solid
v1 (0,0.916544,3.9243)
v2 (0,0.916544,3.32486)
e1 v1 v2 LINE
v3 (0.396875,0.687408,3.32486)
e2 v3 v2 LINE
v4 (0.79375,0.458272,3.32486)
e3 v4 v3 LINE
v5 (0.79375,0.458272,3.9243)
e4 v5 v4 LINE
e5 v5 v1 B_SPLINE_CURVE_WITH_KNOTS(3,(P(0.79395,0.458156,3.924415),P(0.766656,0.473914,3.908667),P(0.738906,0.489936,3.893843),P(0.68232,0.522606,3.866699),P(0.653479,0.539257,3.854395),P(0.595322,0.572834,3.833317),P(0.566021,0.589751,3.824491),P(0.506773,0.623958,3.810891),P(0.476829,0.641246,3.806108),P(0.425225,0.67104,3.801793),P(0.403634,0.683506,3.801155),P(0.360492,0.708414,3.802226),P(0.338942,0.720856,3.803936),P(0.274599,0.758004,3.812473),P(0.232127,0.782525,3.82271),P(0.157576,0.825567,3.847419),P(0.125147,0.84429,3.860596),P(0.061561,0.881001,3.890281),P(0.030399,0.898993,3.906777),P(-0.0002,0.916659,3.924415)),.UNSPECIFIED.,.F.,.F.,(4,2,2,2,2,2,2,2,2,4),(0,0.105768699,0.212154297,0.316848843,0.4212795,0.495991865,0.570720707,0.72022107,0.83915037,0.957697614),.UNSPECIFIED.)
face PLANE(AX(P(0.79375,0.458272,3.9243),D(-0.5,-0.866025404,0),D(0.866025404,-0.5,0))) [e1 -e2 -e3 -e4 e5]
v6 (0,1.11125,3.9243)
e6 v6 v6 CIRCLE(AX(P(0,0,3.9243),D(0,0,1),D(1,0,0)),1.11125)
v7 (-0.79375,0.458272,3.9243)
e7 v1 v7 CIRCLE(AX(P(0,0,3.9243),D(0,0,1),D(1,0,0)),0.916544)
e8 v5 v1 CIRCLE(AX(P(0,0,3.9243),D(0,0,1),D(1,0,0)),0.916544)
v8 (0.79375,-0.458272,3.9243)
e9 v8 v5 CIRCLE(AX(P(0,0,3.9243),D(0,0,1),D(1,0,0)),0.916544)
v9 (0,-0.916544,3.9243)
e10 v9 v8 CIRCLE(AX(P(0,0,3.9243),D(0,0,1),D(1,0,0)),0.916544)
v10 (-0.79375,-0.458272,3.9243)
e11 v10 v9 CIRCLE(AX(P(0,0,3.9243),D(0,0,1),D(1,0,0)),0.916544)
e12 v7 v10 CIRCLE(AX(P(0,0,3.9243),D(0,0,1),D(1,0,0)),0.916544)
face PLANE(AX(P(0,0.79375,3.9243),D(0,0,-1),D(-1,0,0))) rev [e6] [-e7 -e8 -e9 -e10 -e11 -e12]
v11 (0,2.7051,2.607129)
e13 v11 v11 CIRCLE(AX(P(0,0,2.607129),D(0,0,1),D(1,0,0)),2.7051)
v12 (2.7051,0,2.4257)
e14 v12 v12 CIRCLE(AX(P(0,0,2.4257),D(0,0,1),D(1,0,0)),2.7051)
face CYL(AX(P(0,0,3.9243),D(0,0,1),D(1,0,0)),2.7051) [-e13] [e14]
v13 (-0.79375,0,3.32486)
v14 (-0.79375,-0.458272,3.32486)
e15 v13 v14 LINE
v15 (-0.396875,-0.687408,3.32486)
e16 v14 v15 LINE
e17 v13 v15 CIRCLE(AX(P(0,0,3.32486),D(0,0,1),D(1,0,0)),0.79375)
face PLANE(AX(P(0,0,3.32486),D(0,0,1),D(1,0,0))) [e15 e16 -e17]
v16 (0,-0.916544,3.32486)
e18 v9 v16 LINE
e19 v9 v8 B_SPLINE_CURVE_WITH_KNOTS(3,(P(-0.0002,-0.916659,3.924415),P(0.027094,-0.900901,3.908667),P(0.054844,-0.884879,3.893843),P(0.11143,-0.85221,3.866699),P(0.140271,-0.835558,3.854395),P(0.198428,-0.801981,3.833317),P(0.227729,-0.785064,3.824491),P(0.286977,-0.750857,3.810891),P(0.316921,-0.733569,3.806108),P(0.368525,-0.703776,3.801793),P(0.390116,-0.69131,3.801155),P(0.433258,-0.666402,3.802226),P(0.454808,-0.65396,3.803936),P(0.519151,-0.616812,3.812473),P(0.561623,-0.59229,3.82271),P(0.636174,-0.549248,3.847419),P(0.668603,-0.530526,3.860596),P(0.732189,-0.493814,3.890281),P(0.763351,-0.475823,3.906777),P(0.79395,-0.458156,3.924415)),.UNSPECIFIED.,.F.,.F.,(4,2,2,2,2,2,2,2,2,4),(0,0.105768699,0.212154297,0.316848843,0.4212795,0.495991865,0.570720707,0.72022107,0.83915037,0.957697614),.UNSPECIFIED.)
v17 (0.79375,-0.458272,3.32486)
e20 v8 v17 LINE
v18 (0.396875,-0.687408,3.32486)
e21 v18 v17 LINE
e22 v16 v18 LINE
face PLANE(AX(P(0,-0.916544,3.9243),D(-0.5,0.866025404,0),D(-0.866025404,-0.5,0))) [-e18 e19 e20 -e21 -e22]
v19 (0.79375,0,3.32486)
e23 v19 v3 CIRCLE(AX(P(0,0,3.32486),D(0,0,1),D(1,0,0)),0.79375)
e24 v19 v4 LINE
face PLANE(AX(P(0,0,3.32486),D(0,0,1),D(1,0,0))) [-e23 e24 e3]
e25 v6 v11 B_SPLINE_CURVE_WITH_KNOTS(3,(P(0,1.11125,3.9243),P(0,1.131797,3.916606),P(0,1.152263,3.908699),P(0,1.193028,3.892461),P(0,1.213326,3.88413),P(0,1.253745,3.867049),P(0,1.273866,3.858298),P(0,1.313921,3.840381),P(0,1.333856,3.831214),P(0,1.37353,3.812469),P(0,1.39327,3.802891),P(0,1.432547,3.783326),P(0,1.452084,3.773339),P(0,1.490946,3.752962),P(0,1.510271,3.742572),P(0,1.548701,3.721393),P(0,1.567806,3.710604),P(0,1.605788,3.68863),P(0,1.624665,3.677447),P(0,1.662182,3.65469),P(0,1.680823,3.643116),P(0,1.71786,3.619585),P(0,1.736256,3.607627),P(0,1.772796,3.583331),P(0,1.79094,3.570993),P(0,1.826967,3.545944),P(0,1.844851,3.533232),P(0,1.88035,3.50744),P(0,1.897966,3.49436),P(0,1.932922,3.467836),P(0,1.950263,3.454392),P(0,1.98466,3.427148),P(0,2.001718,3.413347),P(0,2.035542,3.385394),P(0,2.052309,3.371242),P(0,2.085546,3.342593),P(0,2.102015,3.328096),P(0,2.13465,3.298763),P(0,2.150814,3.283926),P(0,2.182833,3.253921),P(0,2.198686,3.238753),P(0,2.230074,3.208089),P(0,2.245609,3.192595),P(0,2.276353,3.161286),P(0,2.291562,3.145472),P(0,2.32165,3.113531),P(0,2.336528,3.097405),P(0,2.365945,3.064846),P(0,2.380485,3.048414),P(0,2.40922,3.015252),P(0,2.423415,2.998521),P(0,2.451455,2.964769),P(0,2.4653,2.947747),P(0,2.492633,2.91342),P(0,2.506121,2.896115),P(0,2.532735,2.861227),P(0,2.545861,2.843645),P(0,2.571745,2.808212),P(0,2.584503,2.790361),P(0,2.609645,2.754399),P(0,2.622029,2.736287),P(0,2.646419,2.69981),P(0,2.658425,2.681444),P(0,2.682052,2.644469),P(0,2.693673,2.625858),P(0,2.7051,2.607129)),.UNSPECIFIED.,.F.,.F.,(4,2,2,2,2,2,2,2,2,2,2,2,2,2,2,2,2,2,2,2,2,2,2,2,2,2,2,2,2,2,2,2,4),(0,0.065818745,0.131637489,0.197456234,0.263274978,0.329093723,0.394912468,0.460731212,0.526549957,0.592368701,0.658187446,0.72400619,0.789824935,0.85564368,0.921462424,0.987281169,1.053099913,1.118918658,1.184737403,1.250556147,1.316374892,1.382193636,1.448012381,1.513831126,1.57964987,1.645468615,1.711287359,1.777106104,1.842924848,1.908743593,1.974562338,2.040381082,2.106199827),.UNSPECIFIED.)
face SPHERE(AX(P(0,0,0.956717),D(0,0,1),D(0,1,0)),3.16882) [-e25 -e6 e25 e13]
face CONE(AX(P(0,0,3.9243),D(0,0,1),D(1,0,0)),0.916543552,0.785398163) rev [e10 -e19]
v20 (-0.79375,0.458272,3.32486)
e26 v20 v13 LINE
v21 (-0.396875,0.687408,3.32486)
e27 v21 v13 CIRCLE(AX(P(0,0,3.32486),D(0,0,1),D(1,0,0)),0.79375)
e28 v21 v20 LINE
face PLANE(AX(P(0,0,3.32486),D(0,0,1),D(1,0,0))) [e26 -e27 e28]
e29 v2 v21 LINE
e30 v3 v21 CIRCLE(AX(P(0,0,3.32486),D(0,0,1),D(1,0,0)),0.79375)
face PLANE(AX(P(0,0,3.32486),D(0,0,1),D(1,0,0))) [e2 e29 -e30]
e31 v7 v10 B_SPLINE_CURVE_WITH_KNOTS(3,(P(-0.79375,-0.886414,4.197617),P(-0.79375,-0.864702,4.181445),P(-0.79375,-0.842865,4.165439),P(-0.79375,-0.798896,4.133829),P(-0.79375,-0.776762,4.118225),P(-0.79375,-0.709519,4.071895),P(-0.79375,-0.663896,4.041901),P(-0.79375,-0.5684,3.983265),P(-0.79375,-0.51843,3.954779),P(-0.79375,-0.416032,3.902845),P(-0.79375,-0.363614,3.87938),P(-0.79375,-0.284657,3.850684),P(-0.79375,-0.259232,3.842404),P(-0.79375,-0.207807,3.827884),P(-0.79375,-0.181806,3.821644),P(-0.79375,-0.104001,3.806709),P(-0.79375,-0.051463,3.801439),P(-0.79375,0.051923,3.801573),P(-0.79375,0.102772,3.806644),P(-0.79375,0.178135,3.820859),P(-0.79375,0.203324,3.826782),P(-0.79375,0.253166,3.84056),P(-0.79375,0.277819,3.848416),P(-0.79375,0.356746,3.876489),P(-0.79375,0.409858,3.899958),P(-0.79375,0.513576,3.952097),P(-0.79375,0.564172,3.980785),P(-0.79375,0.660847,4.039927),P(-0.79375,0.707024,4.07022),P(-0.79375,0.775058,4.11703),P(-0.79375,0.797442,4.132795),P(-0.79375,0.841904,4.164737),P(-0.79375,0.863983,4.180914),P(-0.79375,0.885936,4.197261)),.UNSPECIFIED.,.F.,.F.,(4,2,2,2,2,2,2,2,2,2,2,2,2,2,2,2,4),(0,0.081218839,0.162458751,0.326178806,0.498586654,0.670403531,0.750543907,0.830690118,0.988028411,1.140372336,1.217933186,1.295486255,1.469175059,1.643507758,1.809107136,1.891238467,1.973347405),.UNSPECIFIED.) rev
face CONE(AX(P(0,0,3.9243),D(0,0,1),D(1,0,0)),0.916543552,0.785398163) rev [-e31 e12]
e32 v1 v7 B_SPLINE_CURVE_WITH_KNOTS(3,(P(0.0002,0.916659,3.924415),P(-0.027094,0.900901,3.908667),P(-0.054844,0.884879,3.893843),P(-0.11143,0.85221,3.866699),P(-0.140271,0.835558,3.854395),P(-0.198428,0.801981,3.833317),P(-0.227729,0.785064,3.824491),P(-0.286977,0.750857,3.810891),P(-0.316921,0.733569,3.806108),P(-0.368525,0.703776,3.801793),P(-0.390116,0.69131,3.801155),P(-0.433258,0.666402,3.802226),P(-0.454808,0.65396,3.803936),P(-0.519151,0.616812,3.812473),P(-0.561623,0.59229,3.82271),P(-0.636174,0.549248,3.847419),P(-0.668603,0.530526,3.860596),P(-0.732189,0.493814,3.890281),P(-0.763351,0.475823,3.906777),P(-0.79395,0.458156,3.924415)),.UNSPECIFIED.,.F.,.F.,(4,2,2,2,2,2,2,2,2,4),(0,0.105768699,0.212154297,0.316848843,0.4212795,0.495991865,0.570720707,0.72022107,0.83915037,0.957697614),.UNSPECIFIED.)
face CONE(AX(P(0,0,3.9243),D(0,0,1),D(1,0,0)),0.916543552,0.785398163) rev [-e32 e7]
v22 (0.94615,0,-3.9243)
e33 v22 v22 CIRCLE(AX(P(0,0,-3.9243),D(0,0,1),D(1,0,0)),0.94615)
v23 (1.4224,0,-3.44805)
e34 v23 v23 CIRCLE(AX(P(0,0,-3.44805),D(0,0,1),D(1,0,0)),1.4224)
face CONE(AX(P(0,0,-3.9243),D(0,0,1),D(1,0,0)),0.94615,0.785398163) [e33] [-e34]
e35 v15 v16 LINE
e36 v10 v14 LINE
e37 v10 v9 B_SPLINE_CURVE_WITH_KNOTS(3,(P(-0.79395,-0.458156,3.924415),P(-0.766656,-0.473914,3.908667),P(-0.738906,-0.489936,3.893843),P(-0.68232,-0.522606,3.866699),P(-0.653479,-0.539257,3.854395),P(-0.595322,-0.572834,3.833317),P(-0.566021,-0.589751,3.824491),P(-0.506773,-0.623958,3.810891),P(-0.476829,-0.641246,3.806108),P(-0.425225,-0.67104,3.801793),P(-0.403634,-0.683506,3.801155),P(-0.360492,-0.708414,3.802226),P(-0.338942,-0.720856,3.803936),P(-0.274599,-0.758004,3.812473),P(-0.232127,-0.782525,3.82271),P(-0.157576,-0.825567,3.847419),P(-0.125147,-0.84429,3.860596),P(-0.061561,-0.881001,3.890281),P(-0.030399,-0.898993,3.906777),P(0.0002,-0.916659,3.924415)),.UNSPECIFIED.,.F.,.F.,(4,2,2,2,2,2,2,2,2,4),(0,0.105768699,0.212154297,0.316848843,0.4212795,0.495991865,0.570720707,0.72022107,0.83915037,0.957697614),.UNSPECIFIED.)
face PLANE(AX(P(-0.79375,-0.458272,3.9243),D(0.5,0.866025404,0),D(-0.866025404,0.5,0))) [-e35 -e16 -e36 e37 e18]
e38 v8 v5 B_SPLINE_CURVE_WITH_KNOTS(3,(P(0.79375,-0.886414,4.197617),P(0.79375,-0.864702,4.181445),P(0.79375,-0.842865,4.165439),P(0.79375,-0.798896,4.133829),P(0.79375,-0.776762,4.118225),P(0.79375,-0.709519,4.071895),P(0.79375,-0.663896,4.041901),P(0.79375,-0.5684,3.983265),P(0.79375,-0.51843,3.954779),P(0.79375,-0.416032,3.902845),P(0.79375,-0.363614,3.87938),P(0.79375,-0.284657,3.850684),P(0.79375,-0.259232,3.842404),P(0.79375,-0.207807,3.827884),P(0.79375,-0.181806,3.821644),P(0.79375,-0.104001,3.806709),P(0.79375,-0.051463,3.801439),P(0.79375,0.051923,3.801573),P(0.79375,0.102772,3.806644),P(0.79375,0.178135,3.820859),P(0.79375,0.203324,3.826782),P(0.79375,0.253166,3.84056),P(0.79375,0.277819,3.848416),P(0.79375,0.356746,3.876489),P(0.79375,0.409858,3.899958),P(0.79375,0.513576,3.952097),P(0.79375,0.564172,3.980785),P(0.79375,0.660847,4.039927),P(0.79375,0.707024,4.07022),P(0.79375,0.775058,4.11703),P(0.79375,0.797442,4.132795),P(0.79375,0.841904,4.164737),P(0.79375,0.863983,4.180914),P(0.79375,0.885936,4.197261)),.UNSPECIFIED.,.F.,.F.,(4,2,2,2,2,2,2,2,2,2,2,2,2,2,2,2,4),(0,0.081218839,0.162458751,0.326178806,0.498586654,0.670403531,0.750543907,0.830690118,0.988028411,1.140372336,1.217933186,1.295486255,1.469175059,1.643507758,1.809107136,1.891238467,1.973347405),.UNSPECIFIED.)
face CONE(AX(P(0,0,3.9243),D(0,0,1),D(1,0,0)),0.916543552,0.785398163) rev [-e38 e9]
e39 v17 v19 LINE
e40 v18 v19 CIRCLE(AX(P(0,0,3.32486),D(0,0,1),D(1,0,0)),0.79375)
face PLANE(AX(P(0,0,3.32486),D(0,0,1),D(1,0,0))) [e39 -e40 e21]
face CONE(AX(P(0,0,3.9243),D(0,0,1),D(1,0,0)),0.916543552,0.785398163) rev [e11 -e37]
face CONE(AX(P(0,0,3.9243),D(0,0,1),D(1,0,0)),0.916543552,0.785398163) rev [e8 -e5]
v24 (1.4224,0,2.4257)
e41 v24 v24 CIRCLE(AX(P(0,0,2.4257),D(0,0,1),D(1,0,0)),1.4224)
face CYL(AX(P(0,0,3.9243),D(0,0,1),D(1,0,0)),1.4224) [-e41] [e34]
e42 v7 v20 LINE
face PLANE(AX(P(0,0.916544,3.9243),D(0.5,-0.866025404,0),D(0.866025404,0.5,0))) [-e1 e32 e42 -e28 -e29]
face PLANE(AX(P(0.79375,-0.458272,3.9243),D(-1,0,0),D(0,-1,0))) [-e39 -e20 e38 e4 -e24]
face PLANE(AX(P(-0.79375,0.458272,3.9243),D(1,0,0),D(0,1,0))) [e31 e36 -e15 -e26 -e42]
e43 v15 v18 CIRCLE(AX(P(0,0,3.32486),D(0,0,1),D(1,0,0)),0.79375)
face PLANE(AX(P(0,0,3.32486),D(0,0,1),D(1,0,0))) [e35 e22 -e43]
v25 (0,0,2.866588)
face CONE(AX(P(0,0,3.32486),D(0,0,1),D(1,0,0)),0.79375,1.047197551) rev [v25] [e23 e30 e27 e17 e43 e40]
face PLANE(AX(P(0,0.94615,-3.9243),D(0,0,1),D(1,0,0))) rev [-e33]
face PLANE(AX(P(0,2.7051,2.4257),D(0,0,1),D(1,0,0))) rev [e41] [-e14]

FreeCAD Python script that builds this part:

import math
import FreeCAD as App
import Part
import Sketcher
Q = App.Units.Quantity

doc = App.newDocument("Part")
params = doc.addObject("Spreadsheet::Sheet", "Params")
for row, (alias, value) in enumerate([
    ("revolution_angle", "360 deg"),
    ("groove_angle", "360 deg"),
], start=1):
    params.set(f"A{row}", alias)
    params.set(f"B{row}", "=" + value)
    params.setAlias(f"B{row}", alias)

body = doc.addObject("PartDesign::Body", "Body")

sketch1 = doc.addObject("Sketcher::SketchObject", "Sketch")
body.addObject(sketch1)
sketch1.AttachmentSupport = (doc.YZ_Plane, [""])
sketch1.MapMode = "FlatFace"
sketch1.addGeometry([
    Part.LineSegment(App.Vector(1.11, 3.92, 0), App.Vector(0.79, 3.92, 0)),
    Part.LineSegment(App.Vector(0.79, 3.92, 0), App.Vector(0.79, 3.32, 0)),
    Part.LineSegment(App.Vector(0.79, 3.32, 0), App.Vector(0, 2.87, 0)),
    Part.LineSegment(App.Vector(0, 2.87, 0), App.Vector(0, -3.92, 0)),
    Part.LineSegment(App.Vector(0, -3.92, 0), App.Vector(0.95, -3.92, 0)),
    Part.LineSegment(App.Vector(0.95, -3.92, 0), App.Vector(1.42, -3.45, 0)),
    Part.LineSegment(App.Vector(1.42, -3.45, 0), App.Vector(1.42, 2.43, 0)),
    Part.LineSegment(App.Vector(1.42, 2.43, 0), App.Vector(2.71, 2.43, 0)),
    Part.LineSegment(App.Vector(2.71, 2.43, 0), App.Vector(2.71, 2.61, 0)),
    Part.ArcOfCircle(Part.Circle(App.Vector(0, 0.96, 0), App.Vector(0, 0, 1), 3.17), math.radians(31), math.radians(69)),
], False)
sketch1.addConstraint([
    Sketcher.Constraint("Coincident", 0, 2, 1, 1),
    Sketcher.Constraint("Coincident", 1, 2, 2, 1),
    Sketcher.Constraint("Coincident", 2, 2, 3, 1),
    Sketcher.Constraint("Coincident", 3, 2, 4, 1),
    Sketcher.Constraint("Coincident", 4, 2, 5, 1),
    Sketcher.Constraint("Coincident", 5, 2, 6, 1),
    Sketcher.Constraint("Coincident", 6, 2, 7, 1),
    Sketcher.Constraint("Coincident", 7, 2, 8, 1),
    Sketcher.Constraint("Coincident", 8, 2, 9, 1),
    Sketcher.Constraint("Coincident", 9, 2, 0, 1),
    Sketcher.Constraint("Horizontal", 0),
    Sketcher.Constraint("Vertical", 1),
    Sketcher.Constraint("Vertical", 3),
    Sketcher.Constraint("Horizontal", 4),
    Sketcher.Constraint("Vertical", 6),
    Sketcher.Constraint("Horizontal", 7),
    Sketcher.Constraint("Vertical", 8),
    Sketcher.Constraint("PointOnObject", 9, 3, -2),
    Sketcher.Constraint("PointOnObject", 2, 2, -2),
    Sketcher.Constraint("Angle", 2, Q("-150 deg")),
    Sketcher.Constraint("Angle", 5, Q("45 deg")),
    Sketcher.Constraint("Radius", 9, Q("3.16882 mm")),
    Sketcher.Constraint("DistanceX", 0, 2, 0, 1, Q("0.3175 mm")),
    Sketcher.Constraint("DistanceX", 7, 1, 7, 2, Q("1.2827 mm")),
    Sketcher.Constraint("DistanceX", 4, 1, 4, 2, Q("0.94615 mm")),
    Sketcher.Constraint("DistanceY", 1, 2, 1, 1, Q("0.59944 mm")),
    Sketcher.Constraint("DistanceY", 3, 2, 3, 1, Q("6.790888 mm")),
    Sketcher.Constraint("DistanceY", 6, 1, 6, 2, Q("5.87375 mm")),
    Sketcher.Constraint("DistanceY", 8, 1, 8, 2, Q("0.181429 mm")),
    Sketcher.Constraint("DistanceY", -1, 1, 0, 2, Q("3.9243 mm")),
    Sketcher.Constraint("DistanceY", 3, 2, -1, 1, Q("3.9243 mm")),
])
revolution = doc.addObject("PartDesign::Revolution", "Revolution")
body.addObject(revolution)
revolution.Profile = sketch1
revolution.ReferenceAxis = (sketch1, ["V_Axis"])
revolution.setExpression("Angle", "Params.revolution_angle")

sketch2 = doc.addObject("Sketcher::SketchObject", "Sketch001")
body.addObject(sketch2)
sketch2.AttachmentSupport = (doc.XY_Plane, [""])
sketch2.MapMode = "FlatFace"
sketch2.AttachmentOffset = App.Placement(App.Vector(0, 0, 3.32486), App.Rotation())
sketch2.addGeometry([
    Part.LineSegment(App.Vector(0, 0.9, 0), App.Vector(-0.8, 0.5, 0)),
    Part.LineSegment(App.Vector(-0.8, 0.5, 0), App.Vector(-0.8, -0.5, 0)),
    Part.LineSegment(App.Vector(-0.8, -0.5, 0), App.Vector(0, -0.9, 0)),
    Part.LineSegment(App.Vector(0, -0.9, 0), App.Vector(0.8, -0.5, 0)),
    Part.LineSegment(App.Vector(0.8, -0.5, 0), App.Vector(0.8, 0.5, 0)),
    Part.LineSegment(App.Vector(0.8, 0.5, 0), App.Vector(0, 0.9, 0)),
], False)
sketch2.addConstraint([
    Sketcher.Constraint("Coincident", 0, 2, 1, 1),
    Sketcher.Constraint("Coincident", 1, 2, 2, 1),
    Sketcher.Constraint("Coincident", 2, 2, 3, 1),
    Sketcher.Constraint("Coincident", 3, 2, 4, 1),
    Sketcher.Constraint("Coincident", 4, 2, 5, 1),
    Sketcher.Constraint("Coincident", 5, 2, 0, 1),
    Sketcher.Constraint("Vertical", 1),
    Sketcher.Constraint("Vertical", 4),
    Sketcher.Constraint("Symmetric", 0, 2, 3, 2, -1, 1),
    Sketcher.Constraint("Symmetric", 2, 2, 5, 2, -1, 1),
    Sketcher.Constraint("PointOnObject", 2, 2, -2),
    Sketcher.Constraint("Parallel", 2, 5),
    Sketcher.Constraint("Horizontal", 1, 2, 3, 2),
    Sketcher.Constraint("Angle", 0, Q("-150 deg")),
    Sketcher.Constraint("DistanceX", 1, 2, 3, 2, Q("1.5875 mm")),
    Sketcher.Constraint("DistanceY", 1, 2, 1, 1, Q("0.916544 mm")),
])
pocket1 = doc.addObject("PartDesign::Pocket", "Pocket")
body.addObject(pocket1)
pocket1.Profile = sketch2
pocket1.Type = "ThroughAll"
pocket1.Reversed = True

sketch3 = doc.addObject("Sketcher::SketchObject", "Sketch002")
body.addObject(sketch3)
sketch3.AttachmentSupport = (doc.YZ_Plane, [""])
sketch3.MapMode = "FlatFace"
sketch3.addGeometry([
    Part.LineSegment(App.Vector(0, 3.9, 0), App.Vector(-0.9, 3.9, 0)),
    Part.LineSegment(App.Vector(-0.9, 3.9, 0), App.Vector(0, 3, 0)),
    Part.LineSegment(App.Vector(0, 3, 0), App.Vector(0, 3.9, 0)),
], False)
sketch3.addConstraint([
    Sketcher.Constraint("Coincident", 0, 2, 1, 1),
    Sketcher.Constraint("Coincident", 1, 2, 2, 1),
    Sketcher.Constraint("Coincident", 2, 2, 0, 1),
    Sketcher.Constraint("Horizontal", 0),
    Sketcher.Constraint("Vertical", 2),
    Sketcher.Constraint("PointOnObject", 1, 2, -2),
    Sketcher.Constraint("Equal", 0, 2),
    Sketcher.Constraint("DistanceY", -1, 1, 0, 2, Q("3.9243 mm")),
    Sketcher.Constraint("Distance", 1, Q("1.296188 mm")),
])
groove = doc.addObject("PartDesign::Groove", "Groove")
body.addObject(groove)
groove.Profile = sketch3
groove.ReferenceAxis = (sketch3, ["V_Axis"])
groove.setExpression("Angle", "Params.groove_angle")

doc.recompute()
